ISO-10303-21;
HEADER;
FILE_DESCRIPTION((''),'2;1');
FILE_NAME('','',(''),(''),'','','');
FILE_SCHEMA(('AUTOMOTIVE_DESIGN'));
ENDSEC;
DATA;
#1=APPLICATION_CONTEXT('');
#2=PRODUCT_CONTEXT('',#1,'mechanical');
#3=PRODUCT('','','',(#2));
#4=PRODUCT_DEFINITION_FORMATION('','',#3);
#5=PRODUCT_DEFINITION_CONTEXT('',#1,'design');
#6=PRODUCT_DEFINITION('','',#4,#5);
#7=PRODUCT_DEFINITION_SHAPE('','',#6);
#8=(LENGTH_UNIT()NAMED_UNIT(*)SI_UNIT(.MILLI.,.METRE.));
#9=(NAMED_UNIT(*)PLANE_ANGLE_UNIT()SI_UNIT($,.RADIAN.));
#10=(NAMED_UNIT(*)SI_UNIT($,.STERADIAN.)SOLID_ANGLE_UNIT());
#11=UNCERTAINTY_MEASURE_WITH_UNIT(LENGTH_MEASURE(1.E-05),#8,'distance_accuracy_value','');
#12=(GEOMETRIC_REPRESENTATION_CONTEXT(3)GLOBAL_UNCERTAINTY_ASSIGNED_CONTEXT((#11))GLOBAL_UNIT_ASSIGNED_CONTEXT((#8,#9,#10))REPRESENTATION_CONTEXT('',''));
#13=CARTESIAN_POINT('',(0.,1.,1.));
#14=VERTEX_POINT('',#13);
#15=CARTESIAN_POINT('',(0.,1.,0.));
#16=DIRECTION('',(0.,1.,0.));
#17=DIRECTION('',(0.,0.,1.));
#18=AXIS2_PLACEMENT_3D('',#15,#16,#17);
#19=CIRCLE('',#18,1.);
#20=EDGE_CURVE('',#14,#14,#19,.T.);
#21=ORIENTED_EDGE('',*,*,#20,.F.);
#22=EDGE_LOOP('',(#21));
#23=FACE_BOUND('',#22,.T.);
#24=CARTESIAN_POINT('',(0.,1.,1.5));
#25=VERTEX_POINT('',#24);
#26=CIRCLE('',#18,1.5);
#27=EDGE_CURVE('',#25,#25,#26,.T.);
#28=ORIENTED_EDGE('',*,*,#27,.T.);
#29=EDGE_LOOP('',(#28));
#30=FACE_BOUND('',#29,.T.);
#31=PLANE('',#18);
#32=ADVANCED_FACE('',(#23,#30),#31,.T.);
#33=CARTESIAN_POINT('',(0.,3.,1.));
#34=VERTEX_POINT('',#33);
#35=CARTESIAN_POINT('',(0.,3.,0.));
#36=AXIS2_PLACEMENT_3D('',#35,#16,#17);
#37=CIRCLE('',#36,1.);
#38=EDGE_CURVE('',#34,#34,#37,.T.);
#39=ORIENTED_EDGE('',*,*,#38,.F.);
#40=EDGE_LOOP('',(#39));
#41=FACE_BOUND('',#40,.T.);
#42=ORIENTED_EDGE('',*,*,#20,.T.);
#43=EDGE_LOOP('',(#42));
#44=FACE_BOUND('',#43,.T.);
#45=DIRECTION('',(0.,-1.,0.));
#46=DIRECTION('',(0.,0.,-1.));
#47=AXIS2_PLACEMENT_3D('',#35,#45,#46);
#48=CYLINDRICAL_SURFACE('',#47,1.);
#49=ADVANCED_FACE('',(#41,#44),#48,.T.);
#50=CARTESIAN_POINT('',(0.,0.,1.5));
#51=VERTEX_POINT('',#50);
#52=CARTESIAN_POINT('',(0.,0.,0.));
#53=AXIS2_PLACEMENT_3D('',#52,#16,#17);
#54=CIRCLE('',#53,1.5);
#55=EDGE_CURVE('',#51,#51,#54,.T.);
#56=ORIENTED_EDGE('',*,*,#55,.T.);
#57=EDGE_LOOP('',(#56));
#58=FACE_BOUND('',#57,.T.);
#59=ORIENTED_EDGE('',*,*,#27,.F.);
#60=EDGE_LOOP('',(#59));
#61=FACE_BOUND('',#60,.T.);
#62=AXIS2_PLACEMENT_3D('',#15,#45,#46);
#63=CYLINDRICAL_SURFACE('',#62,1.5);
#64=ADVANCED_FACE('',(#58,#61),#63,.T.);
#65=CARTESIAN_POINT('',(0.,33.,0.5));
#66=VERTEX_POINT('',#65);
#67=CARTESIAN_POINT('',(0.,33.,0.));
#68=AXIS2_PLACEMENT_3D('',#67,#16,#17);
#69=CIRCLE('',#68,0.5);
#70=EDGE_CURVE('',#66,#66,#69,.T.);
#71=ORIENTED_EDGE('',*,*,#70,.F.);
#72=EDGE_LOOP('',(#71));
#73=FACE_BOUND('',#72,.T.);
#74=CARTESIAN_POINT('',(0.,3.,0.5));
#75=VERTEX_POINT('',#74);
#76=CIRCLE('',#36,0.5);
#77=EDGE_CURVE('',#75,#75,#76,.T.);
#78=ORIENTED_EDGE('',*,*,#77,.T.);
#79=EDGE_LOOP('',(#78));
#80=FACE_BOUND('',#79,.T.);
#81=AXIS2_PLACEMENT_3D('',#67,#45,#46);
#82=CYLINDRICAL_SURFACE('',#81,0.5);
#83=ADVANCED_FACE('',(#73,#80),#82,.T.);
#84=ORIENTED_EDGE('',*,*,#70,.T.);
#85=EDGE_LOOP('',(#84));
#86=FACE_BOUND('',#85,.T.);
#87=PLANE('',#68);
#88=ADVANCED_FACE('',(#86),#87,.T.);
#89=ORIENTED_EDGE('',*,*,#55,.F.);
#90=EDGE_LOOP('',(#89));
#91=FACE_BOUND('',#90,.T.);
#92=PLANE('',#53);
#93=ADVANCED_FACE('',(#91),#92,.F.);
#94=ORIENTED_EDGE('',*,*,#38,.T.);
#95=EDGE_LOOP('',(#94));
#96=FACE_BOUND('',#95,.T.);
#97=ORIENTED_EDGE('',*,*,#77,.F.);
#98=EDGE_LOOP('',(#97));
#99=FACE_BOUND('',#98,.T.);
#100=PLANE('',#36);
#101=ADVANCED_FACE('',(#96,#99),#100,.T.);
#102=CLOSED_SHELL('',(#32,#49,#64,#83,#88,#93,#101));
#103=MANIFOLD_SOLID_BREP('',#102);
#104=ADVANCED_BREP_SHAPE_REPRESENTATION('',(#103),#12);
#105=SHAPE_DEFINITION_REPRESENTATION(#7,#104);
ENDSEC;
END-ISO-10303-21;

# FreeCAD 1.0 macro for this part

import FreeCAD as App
import Part
import Sketcher
from FreeCAD import Vector

doc = App.newDocument("Part")
body = doc.addObject("PartDesign::Body", "Body")

sketch1 = body.newObject("Sketcher::SketchObject", "Sketch")
sketch1.AttachmentSupport = (doc.getObject("XZ_Plane"), [""])
sketch1.MapMode = "FlatFace"
sketch1.addGeometry(Part.Circle(Vector(0, 0, 0), Vector(0, 0, 1), 1.5), False)
sketch1.addConstraint([
    Sketcher.Constraint("Coincident", 0, 3, -1, 1),
    Sketcher.Constraint("Diameter", 0, 3.0),
])
pad1 = body.newObject("PartDesign::Pad", "Pad")
pad1.Profile = sketch1
pad1.Length = 1
pad1.Reversed = True

sketch2 = body.newObject("Sketcher::SketchObject", "Sketch001")
sketch2.AttachmentSupport = (doc.getObject("XZ_Plane"), [""])
sketch2.MapMode = "FlatFace"
sketch2.AttachmentOffset = App.Placement(Vector(0, 0, -1), App.Rotation())
sketch2.addGeometry(Part.Circle(Vector(0, 0, 0), Vector(0, 0, 1), 1), False)
sketch2.addConstraint([
    Sketcher.Constraint("Coincident", 0, 3, -1, 1),
    Sketcher.Constraint("Diameter", 0, 2.0),
])
pad2 = body.newObject("PartDesign::Pad", "Pad001")
pad2.Profile = sketch2
pad2.Length = 2
pad2.Reversed = True

sketch3 = body.newObject("Sketcher::SketchObject", "Sketch002")
sketch3.AttachmentSupport = (doc.getObject("XZ_Plane"), [""])
sketch3.MapMode = "FlatFace"
sketch3.AttachmentOffset = App.Placement(Vector(0, 0, -3), App.Rotation())
sketch3.addGeometry(Part.Circle(Vector(0, 0, 0), Vector(0, 0, 1), 0.5), False)
sketch3.addConstraint([
    Sketcher.Constraint("Coincident", 0, 3, -1, 1),
    Sketcher.Constraint("Diameter", 0, 1.0),
])
pad3 = body.newObject("PartDesign::Pad", "Pad002")
pad3.Profile = sketch3
pad3.Length = 30
pad3.Reversed = True

doc.recompute()
